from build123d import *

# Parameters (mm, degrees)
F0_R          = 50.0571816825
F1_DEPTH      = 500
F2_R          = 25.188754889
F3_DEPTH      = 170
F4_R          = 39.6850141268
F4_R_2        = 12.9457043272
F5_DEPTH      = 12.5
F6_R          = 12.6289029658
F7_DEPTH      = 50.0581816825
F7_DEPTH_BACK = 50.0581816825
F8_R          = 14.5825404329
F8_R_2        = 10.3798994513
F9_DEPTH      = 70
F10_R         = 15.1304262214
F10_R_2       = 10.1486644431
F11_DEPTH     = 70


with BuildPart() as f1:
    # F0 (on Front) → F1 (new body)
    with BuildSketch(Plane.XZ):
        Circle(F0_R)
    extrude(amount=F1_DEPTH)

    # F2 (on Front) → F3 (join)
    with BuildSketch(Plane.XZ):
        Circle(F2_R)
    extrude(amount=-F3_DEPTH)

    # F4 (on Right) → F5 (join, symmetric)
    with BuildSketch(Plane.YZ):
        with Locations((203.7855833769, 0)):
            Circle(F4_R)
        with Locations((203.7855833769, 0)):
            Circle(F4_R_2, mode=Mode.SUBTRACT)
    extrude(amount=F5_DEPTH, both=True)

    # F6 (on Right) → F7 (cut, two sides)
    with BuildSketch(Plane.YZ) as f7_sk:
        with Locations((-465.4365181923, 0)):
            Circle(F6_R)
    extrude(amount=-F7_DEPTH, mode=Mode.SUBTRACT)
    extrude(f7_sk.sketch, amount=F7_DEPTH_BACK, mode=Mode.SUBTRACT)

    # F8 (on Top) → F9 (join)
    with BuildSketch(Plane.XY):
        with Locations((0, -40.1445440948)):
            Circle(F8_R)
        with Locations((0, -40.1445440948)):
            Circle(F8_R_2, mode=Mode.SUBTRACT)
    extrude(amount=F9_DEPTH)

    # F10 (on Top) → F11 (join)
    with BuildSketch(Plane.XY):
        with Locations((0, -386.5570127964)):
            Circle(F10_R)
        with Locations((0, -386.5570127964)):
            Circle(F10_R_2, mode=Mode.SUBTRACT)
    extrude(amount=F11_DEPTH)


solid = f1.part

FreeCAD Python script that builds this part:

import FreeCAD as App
import Part
import Sketcher

V = App.Vector
Q = App.Units.Quantity

doc = App.newDocument("Part")
body = doc.addObject("PartDesign::Body", "Body")

sketch1 = body.newObject("Sketcher::SketchObject", "Sketch")
sketch1.AttachmentSupport = (doc.getObject("XZ_Plane"), [""])
sketch1.MapMode = "FlatFace"
sketch1.addGeometry(Part.Circle(V(0, 0, 0), V(0, 0, 1), 50), False)
sketch1.addConstraint([
    Sketcher.Constraint("Coincident", 0, 3, -1, 1),
    Sketcher.Constraint("Diameter", 0, Q("100.114363 mm")),
])
pad1 = body.newObject("PartDesign::Pad", "Pad")
pad1.Profile = sketch1
pad1.Length = 500

sketch2 = body.newObject("Sketcher::SketchObject", "Sketch001")
sketch2.AttachmentSupport = (doc.getObject("XZ_Plane"), [""])
sketch2.MapMode = "FlatFace"
sketch2.addGeometry(Part.Circle(V(0, 0, 0), V(0, 0, 1), 25), False)
sketch2.addConstraint([
    Sketcher.Constraint("Coincident", 0, 3, -1, 1),
    Sketcher.Constraint("Diameter", 0, Q("50.37751 mm")),
])
pad2 = body.newObject("PartDesign::Pad", "Pad001")
pad2.Profile = sketch2
pad2.Length = 170
pad2.Reversed = True

sketch3 = body.newObject("Sketcher::SketchObject", "Sketch002")
sketch3.AttachmentSupport = (doc.getObject("YZ_Plane"), [""])
sketch3.MapMode = "FlatFace"
sketch3.addGeometry([
    Part.Circle(V(204, 0, 0), V(0, 0, 1), 40),
    Part.Circle(V(204, 0, 0), V(0, 0, 1), 13),
], False)
sketch3.addConstraint([
    Sketcher.Constraint("Coincident", 1, 3, 0, 3),
    Sketcher.Constraint("PointOnObject", 0, 3, -1),
    Sketcher.Constraint("Diameter", 0, Q("79.370028 mm")),
    Sketcher.Constraint("Diameter", 1, Q("25.891409 mm")),
    Sketcher.Constraint("DistanceX", -1, 1, 0, 3, Q("203.785583 mm")),
])
pad3 = body.newObject("PartDesign::Pad", "Pad002")
pad3.Profile = sketch3
pad3.Length = 25
pad3.Midplane = True

sketch4 = body.newObject("Sketcher::SketchObject", "Sketch003")
sketch4.AttachmentSupport = (doc.getObject("YZ_Plane"), [""])
sketch4.MapMode = "FlatFace"
sketch4.addGeometry(Part.Circle(V(-465, 0, 0), V(0, 0, 1), 13), False)
sketch4.addConstraint([
    Sketcher.Constraint("PointOnObject", 0, 3, -1),
    Sketcher.Constraint("Diameter", 0, Q("25.257806 mm")),
    Sketcher.Constraint("DistanceX", 0, 3, -1, 1, Q("465.436518 mm")),
])
pocket1 = body.newObject("PartDesign::Pocket", "Pocket")
pocket1.Profile = sketch4
pocket1.Type = "ThroughAll"
pocket1.Midplane = True

sketch5 = body.newObject("Sketcher::SketchObject", "Sketch004")
sketch5.AttachmentSupport = (doc.getObject("XY_Plane"), [""])
sketch5.MapMode = "FlatFace"
sketch5.addGeometry([
    Part.Circle(V(0, -40, 0), V(0, 0, 1), 15),
    Part.Circle(V(0, -40, 0), V(0, 0, 1), 10),
], False)
sketch5.addConstraint([
    Sketcher.Constraint("Coincident", 1, 3, 0, 3),
    Sketcher.Constraint("PointOnObject", 0, 3, -2),
    Sketcher.Constraint("Diameter", 1, Q("20.759799 mm")),
    Sketcher.Constraint("Diameter", 0, Q("29.165081 mm")),
    Sketcher.Constraint("DistanceY", 0, 3, -1, 1, Q("40.144544 mm")),
])
pad4 = body.newObject("PartDesign::Pad", "Pad003")
pad4.Profile = sketch5
pad4.Length = 70

sketch6 = body.newObject("Sketcher::SketchObject", "Sketch005")
sketch6.AttachmentSupport = (doc.getObject("XY_Plane"), [""])
sketch6.MapMode = "FlatFace"
sketch6.addGeometry([
    Part.Circle(V(0, -387, 0), V(0, 0, 1), 15),
    Part.Circle(V(0, -387, 0), V(0, 0, 1), 10),
], False)
sketch6.addConstraint([
    Sketcher.Constraint("Coincident", 1, 3, 0, 3),
    Sketcher.Constraint("PointOnObject", 0, 3, -2),
    Sketcher.Constraint("Diameter", 1, Q("20.297329 mm")),
    Sketcher.Constraint("Diameter", 0, Q("30.260852 mm")),
    Sketcher.Constraint("DistanceY", 0, 3, -1, 1, Q("386.557013 mm")),
])
pad5 = body.newObject("PartDesign::Pad", "Pad004")
pad5.Profile = sketch6
pad5.Length = 70

doc.recompute()
